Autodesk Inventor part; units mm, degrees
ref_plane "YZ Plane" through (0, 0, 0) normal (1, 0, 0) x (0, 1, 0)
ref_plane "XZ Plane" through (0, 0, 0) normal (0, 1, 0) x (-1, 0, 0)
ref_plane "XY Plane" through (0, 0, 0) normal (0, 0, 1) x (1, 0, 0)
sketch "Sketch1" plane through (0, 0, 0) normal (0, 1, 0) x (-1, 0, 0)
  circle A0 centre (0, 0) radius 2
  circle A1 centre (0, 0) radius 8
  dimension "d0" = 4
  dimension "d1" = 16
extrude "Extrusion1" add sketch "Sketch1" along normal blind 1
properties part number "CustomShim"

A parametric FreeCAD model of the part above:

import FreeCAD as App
import Part
import Sketcher
from FreeCAD import Vector

doc = App.newDocument("Part")
body = doc.addObject("PartDesign::Body", "Body")

sketch1 = doc.addObject("Sketcher::SketchObject", "Sketch")
body.addObject(sketch1)
sketch1.AttachmentSupport = (doc.XZ_Plane, [""])
sketch1.MapMode = "FlatFace"
sketch1.addGeometry(Part.Circle(Vector(0, 0, 0), Vector(0, 0, 1), 8), False)
sketch1.addGeometry(Part.Circle(Vector(0, 0, 0), Vector(0, 0, 1), 2), False)
sketch1.addConstraint(Sketcher.Constraint("Coincident", 0, 3, -1, 1))
sketch1.addConstraint(Sketcher.Constraint("Coincident", 1, 3, -1, 1))
sketch1.addConstraint(Sketcher.Constraint("Diameter", 0, 16.0))
sketch1.addConstraint(Sketcher.Constraint("Diameter", 1, 4.0))
pad1 = doc.addObject("PartDesign::Pad", "Pad")
body.addObject(pad1)
pad1.Profile = sketch1
pad1.Length = 1
pad1.Reversed = True

doc.recompute()
